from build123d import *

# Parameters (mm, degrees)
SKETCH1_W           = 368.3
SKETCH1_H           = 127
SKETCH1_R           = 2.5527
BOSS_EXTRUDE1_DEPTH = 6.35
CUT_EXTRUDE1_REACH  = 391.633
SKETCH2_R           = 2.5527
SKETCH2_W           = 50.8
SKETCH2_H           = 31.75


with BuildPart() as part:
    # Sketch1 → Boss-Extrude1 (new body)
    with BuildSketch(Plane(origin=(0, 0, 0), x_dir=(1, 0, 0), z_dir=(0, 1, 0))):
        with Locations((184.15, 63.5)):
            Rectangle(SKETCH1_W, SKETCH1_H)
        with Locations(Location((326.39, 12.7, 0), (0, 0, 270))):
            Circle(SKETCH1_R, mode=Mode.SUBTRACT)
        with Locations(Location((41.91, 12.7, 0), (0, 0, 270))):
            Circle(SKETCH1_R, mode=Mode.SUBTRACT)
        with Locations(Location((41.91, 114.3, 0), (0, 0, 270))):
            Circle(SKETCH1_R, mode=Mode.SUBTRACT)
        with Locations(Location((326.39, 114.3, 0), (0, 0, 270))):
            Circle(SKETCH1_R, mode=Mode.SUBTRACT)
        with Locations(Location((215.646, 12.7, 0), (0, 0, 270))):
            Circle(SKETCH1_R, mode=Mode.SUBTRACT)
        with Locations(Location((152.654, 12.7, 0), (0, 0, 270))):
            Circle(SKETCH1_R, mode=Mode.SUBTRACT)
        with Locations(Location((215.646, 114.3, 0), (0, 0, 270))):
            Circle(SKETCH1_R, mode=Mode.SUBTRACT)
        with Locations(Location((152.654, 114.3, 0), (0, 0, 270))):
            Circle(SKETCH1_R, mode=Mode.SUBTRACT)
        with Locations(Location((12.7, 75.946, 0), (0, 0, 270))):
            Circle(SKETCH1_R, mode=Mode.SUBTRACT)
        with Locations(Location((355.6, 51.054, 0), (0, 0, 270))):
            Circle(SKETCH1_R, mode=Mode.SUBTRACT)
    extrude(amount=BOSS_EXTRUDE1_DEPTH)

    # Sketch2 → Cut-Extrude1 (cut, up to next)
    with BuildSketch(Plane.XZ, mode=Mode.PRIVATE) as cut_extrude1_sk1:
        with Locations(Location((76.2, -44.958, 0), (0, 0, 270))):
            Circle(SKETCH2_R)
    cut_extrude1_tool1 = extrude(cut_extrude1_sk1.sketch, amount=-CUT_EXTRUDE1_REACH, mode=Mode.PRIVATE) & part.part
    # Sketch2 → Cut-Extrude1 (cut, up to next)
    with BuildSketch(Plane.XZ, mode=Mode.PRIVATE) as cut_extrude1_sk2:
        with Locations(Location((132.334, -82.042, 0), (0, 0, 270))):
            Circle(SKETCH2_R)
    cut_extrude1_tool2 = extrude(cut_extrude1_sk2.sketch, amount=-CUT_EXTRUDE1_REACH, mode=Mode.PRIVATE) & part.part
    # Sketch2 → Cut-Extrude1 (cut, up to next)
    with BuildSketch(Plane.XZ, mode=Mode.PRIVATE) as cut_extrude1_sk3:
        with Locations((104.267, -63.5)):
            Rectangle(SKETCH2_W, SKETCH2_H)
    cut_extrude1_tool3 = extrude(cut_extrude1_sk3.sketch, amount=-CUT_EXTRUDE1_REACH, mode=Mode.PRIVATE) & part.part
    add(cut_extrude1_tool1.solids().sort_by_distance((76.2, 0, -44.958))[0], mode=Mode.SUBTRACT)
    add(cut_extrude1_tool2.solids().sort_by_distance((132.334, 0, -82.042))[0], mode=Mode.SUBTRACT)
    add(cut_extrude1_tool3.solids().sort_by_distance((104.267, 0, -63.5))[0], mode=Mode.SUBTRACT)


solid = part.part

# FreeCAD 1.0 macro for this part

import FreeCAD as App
import Part
import Sketcher
Q = App.Units.Quantity

doc = App.newDocument("Part")
body = doc.addObject("PartDesign::Body", "Body")

sketch1 = body.newObject("Sketcher::SketchObject", "Sketch")
sketch1.AttachmentSupport = (doc.getObject("XZ_Plane"), [""])
sketch1.MapMode = "FlatFace"
sketch1.addGeometry([
    Part.LineSegment(App.Vector(0, -127, 0), App.Vector(0, 0, 0)),
    Part.LineSegment(App.Vector(0, 0, 0), App.Vector(368.3, 0, 0)),
    Part.LineSegment(App.Vector(368.3, 0, 0), App.Vector(368.3, -127, 0)),
    Part.LineSegment(App.Vector(368.3, -127, 0), App.Vector(0, -127, 0)),
    Part.Circle(App.Vector(41.91, -12.7, 0), App.Vector(0, 0, 1), 2.5527),
    Part.Circle(App.Vector(152.654, -12.7, 0), App.Vector(0, 0, 1), 2.5527),
    Part.Circle(App.Vector(215.646, -12.7, 0), App.Vector(0, 0, 1), 2.5527),
    Part.Circle(App.Vector(326.39, -12.7, 0), App.Vector(0, 0, 1), 2.5527),
    Part.Circle(App.Vector(355.6, -51.054, 0), App.Vector(0, 0, 1), 2.5527),
    Part.Circle(App.Vector(12.7, -75.946, 0), App.Vector(0, 0, 1), 2.5527),
    Part.Circle(App.Vector(41.91, -114.3, 0), App.Vector(0, 0, 1), 2.5527),
    Part.Circle(App.Vector(152.654, -114.3, 0), App.Vector(0, 0, 1), 2.5527),
    Part.Circle(App.Vector(215.646, -114.3, 0), App.Vector(0, 0, 1), 2.5527),
    Part.Circle(App.Vector(326.39, -114.3, 0), App.Vector(0, 0, 1), 2.5527),
], False)
sketch1.addConstraint([
    Sketcher.Constraint("Coincident", 0, 2, 1, 1),
    Sketcher.Constraint("Coincident", 1, 2, 2, 1),
    Sketcher.Constraint("Coincident", 2, 2, 3, 1),
    Sketcher.Constraint("Coincident", 3, 2, 0, 1),
    Sketcher.Constraint("Vertical", 0),
    Sketcher.Constraint("Horizontal", 1),
    Sketcher.Constraint("Vertical", 2),
    Sketcher.Constraint("Horizontal", 3),
    Sketcher.Constraint("Coincident", 0, 2, -1, 1),
    Sketcher.Constraint("Equal", 4, 5),
    Sketcher.Constraint("Equal", 5, 6),
    Sketcher.Constraint("Equal", 6, 7),
    Sketcher.Constraint("Equal", 7, 8),
    Sketcher.Constraint("Equal", 8, 9),
    Sketcher.Constraint("Equal", 9, 10),
    Sketcher.Constraint("Equal", 10, 11),
    Sketcher.Constraint("Equal", 11, 12),
    Sketcher.Constraint("Equal", 12, 13),
    Sketcher.Constraint("Horizontal", 4, 3, 5, 3),
    Sketcher.Constraint("Horizontal", 5, 3, 6, 3),
    Sketcher.Constraint("Horizontal", 6, 3, 7, 3),
    Sketcher.Constraint("Horizontal", 10, 3, 11, 3),
    Sketcher.Constraint("Horizontal", 11, 3, 12, 3),
    Sketcher.Constraint("Horizontal", 12, 3, 13, 3),
    Sketcher.Constraint("Vertical", 4, 3, 10, 3),
    Sketcher.Constraint("Vertical", 5, 3, 11, 3),
    Sketcher.Constraint("Vertical", 6, 3, 12, 3),
    Sketcher.Constraint("Vertical", 7, 3, 13, 3),
    Sketcher.Constraint("DistanceY", 0, 1, 0, 2, Q("5 in")),
    Sketcher.Constraint("Diameter", 4, Q("0.201 in")),
    Sketcher.Constraint("DistanceX", 1, 1, 1, 2, Q("14.5 in")),
    Sketcher.Constraint("DistanceX", -1, 1, 8, 3, Q("14 in")),
    Sketcher.Constraint("DistanceY", 10, 3, 4, 3, Q("4 in")),
    Sketcher.Constraint("DistanceY", 4, 3, -1, 1, Q("0.5 in")),
    Sketcher.Constraint("DistanceX", -1, 1, 9, 3, Q("0.5 in")),
    Sketcher.Constraint("DistanceX", 4, 3, 7, 3, Q("11.2 in")),
    Sketcher.Constraint("DistanceX", -1, 1, 4, 3, Q("1.65 in")),
    Sketcher.Constraint("DistanceX", -1, 1, 5, 3, Q("6.01 in")),
    Sketcher.Constraint("DistanceX", -1, 1, 6, 3, Q("8.49 in")),
    Sketcher.Constraint("DistanceY", 8, 3, -1, 1, Q("2.01 in")),
    Sketcher.Constraint("DistanceY", 9, 3, -1, 1, Q("2.99 in")),
])
pad1 = body.newObject("PartDesign::Pad", "Pad")
pad1.Profile = sketch1
pad1.Length = Q("0.25 in")
pad1.Reversed = True

sketch2 = body.newObject("Sketcher::SketchObject", "Sketch001")
sketch2.AttachmentSupport = (doc.getObject("XZ_Plane"), [""])
sketch2.MapMode = "FlatFace"
sketch2.addGeometry(Part.Circle(App.Vector(76.2, -44.958, 0), App.Vector(0, 0, 1), 2.5527), False)
sketch2.addConstraint([
    Sketcher.Constraint("Diameter", 0, Q("0.201 in")),
    Sketcher.Constraint("DistanceX", -1, 1, 0, 3, Q("3 in")),
    Sketcher.Constraint("DistanceY", 0, 3, -1, 1, Q("1.77 in")),
])
pocket1 = body.newObject("PartDesign::Pocket", "Pocket")
pocket1.Profile = sketch2
pocket1.Type = "UpToFirst"

sketch3 = body.newObject("Sketcher::SketchObject", "Sketch002")
sketch3.AttachmentSupport = (doc.getObject("XZ_Plane"), [""])
sketch3.MapMode = "FlatFace"
sketch3.addGeometry(Part.Circle(App.Vector(132.334, -82.042, 0), App.Vector(0, 0, 1), 2.5527), False)
sketch3.addConstraint([
    Sketcher.Constraint("Diameter", 0, Q("0.201 in")),
    Sketcher.Constraint("DistanceX", -1, 1, 0, 3, Q("5.21 in")),
    Sketcher.Constraint("DistanceY", 0, 3, -1, 1, Q("3.23 in")),
])
pocket2 = body.newObject("PartDesign::Pocket", "Pocket001")
pocket2.Profile = sketch3
pocket2.Type = "UpToFirst"

sketch4 = body.newObject("Sketcher::SketchObject", "Sketch003")
sketch4.AttachmentSupport = (doc.getObject("XZ_Plane"), [""])
sketch4.MapMode = "FlatFace"
sketch4.addGeometry([
    Part.LineSegment(App.Vector(78.867, -47.625, 0), App.Vector(78.867, -79.375, 0)),
    Part.LineSegment(App.Vector(78.867, -79.375, 0), App.Vector(129.667, -79.375, 0)),
    Part.LineSegment(App.Vector(129.667, -79.375, 0), App.Vector(129.667, -47.625, 0)),
    Part.LineSegment(App.Vector(129.667, -47.625, 0), App.Vector(78.867, -47.625, 0)),
], False)
sketch4.addConstraint([
    Sketcher.Constraint("Coincident", 0, 2, 1, 1),
    Sketcher.Constraint("Coincident", 1, 2, 2, 1),
    Sketcher.Constraint("Coincident", 2, 2, 3, 1),
    Sketcher.Constraint("Coincident", 3, 2, 0, 1),
    Sketcher.Constraint("Vertical", 0),
    Sketcher.Constraint("Horizontal", 1),
    Sketcher.Constraint("Vertical", 2),
    Sketcher.Constraint("Horizontal", 3),
    Sketcher.Constraint("DistanceX", 1, 1, 1, 2, Q("2 in")),
    Sketcher.Constraint("DistanceY", 0, 2, 0, 1, Q("1.25 in")),
    Sketcher.Constraint("DistanceX", -1, 1, 0, 2, Q("3.105 in")),
    Sketcher.Constraint("DistanceY", 0, 2, -1, 1, Q("3.125 in")),
])
pocket3 = body.newObject("PartDesign::Pocket", "Pocket002")
pocket3.Profile = sketch4
pocket3.Type = "UpToFirst"

doc.recompute()
